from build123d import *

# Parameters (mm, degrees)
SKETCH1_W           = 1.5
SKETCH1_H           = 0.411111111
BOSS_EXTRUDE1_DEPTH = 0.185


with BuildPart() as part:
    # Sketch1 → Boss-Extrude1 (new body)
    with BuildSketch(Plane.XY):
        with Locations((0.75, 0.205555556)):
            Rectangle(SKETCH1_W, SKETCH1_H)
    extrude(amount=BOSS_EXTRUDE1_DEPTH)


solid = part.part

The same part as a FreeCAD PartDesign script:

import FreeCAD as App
import Part
import Sketcher


def add_polygon(sketch, points):
    """Adds a closed chain of lines whose ends are joined by coincident constraints."""
    first, n = sketch.GeometryCount, len(points)
    for a, b in zip(points, points[1:] + points[:1]):
        sketch.addGeometry(Part.LineSegment(App.Vector(*a, 0), App.Vector(*b, 0)), False)
    for i in range(n):
        sketch.addConstraint(Sketcher.Constraint("Coincident", first + i, 2, first + (i + 1) % n, 1))

doc = App.newDocument("Part")
body = doc.addObject("PartDesign::Body", "Body")

sketch1 = body.newObject("Sketcher::SketchObject", "Sketch")
sketch1.AttachmentSupport = (doc.getObject("XY_Plane"), [""])
sketch1.MapMode = "FlatFace"
add_polygon(sketch1, [(0, 0.411111), (0, 0), (1.5, 0), (1.5, 0.411111)])
sketch1.addConstraint(Sketcher.Constraint("Vertical", 0))
sketch1.addConstraint(Sketcher.Constraint("Horizontal", 1))
sketch1.addConstraint(Sketcher.Constraint("Vertical", 2))
sketch1.addConstraint(Sketcher.Constraint("Horizontal", 3))
sketch1.addConstraint(Sketcher.Constraint("Coincident", 0, 2, -1, 1))
sketch1.addConstraint(Sketcher.Constraint("DistanceX", 1, 1, 1, 2, 1.5))
sketch1.addConstraint(Sketcher.Constraint("DistanceY", 0, 2, 0, 1, 0.411111))
pad1 = body.newObject("PartDesign::Pad", "Pad")
pad1.Profile = sketch1
pad1.Length = 0.185

doc.recompute()
